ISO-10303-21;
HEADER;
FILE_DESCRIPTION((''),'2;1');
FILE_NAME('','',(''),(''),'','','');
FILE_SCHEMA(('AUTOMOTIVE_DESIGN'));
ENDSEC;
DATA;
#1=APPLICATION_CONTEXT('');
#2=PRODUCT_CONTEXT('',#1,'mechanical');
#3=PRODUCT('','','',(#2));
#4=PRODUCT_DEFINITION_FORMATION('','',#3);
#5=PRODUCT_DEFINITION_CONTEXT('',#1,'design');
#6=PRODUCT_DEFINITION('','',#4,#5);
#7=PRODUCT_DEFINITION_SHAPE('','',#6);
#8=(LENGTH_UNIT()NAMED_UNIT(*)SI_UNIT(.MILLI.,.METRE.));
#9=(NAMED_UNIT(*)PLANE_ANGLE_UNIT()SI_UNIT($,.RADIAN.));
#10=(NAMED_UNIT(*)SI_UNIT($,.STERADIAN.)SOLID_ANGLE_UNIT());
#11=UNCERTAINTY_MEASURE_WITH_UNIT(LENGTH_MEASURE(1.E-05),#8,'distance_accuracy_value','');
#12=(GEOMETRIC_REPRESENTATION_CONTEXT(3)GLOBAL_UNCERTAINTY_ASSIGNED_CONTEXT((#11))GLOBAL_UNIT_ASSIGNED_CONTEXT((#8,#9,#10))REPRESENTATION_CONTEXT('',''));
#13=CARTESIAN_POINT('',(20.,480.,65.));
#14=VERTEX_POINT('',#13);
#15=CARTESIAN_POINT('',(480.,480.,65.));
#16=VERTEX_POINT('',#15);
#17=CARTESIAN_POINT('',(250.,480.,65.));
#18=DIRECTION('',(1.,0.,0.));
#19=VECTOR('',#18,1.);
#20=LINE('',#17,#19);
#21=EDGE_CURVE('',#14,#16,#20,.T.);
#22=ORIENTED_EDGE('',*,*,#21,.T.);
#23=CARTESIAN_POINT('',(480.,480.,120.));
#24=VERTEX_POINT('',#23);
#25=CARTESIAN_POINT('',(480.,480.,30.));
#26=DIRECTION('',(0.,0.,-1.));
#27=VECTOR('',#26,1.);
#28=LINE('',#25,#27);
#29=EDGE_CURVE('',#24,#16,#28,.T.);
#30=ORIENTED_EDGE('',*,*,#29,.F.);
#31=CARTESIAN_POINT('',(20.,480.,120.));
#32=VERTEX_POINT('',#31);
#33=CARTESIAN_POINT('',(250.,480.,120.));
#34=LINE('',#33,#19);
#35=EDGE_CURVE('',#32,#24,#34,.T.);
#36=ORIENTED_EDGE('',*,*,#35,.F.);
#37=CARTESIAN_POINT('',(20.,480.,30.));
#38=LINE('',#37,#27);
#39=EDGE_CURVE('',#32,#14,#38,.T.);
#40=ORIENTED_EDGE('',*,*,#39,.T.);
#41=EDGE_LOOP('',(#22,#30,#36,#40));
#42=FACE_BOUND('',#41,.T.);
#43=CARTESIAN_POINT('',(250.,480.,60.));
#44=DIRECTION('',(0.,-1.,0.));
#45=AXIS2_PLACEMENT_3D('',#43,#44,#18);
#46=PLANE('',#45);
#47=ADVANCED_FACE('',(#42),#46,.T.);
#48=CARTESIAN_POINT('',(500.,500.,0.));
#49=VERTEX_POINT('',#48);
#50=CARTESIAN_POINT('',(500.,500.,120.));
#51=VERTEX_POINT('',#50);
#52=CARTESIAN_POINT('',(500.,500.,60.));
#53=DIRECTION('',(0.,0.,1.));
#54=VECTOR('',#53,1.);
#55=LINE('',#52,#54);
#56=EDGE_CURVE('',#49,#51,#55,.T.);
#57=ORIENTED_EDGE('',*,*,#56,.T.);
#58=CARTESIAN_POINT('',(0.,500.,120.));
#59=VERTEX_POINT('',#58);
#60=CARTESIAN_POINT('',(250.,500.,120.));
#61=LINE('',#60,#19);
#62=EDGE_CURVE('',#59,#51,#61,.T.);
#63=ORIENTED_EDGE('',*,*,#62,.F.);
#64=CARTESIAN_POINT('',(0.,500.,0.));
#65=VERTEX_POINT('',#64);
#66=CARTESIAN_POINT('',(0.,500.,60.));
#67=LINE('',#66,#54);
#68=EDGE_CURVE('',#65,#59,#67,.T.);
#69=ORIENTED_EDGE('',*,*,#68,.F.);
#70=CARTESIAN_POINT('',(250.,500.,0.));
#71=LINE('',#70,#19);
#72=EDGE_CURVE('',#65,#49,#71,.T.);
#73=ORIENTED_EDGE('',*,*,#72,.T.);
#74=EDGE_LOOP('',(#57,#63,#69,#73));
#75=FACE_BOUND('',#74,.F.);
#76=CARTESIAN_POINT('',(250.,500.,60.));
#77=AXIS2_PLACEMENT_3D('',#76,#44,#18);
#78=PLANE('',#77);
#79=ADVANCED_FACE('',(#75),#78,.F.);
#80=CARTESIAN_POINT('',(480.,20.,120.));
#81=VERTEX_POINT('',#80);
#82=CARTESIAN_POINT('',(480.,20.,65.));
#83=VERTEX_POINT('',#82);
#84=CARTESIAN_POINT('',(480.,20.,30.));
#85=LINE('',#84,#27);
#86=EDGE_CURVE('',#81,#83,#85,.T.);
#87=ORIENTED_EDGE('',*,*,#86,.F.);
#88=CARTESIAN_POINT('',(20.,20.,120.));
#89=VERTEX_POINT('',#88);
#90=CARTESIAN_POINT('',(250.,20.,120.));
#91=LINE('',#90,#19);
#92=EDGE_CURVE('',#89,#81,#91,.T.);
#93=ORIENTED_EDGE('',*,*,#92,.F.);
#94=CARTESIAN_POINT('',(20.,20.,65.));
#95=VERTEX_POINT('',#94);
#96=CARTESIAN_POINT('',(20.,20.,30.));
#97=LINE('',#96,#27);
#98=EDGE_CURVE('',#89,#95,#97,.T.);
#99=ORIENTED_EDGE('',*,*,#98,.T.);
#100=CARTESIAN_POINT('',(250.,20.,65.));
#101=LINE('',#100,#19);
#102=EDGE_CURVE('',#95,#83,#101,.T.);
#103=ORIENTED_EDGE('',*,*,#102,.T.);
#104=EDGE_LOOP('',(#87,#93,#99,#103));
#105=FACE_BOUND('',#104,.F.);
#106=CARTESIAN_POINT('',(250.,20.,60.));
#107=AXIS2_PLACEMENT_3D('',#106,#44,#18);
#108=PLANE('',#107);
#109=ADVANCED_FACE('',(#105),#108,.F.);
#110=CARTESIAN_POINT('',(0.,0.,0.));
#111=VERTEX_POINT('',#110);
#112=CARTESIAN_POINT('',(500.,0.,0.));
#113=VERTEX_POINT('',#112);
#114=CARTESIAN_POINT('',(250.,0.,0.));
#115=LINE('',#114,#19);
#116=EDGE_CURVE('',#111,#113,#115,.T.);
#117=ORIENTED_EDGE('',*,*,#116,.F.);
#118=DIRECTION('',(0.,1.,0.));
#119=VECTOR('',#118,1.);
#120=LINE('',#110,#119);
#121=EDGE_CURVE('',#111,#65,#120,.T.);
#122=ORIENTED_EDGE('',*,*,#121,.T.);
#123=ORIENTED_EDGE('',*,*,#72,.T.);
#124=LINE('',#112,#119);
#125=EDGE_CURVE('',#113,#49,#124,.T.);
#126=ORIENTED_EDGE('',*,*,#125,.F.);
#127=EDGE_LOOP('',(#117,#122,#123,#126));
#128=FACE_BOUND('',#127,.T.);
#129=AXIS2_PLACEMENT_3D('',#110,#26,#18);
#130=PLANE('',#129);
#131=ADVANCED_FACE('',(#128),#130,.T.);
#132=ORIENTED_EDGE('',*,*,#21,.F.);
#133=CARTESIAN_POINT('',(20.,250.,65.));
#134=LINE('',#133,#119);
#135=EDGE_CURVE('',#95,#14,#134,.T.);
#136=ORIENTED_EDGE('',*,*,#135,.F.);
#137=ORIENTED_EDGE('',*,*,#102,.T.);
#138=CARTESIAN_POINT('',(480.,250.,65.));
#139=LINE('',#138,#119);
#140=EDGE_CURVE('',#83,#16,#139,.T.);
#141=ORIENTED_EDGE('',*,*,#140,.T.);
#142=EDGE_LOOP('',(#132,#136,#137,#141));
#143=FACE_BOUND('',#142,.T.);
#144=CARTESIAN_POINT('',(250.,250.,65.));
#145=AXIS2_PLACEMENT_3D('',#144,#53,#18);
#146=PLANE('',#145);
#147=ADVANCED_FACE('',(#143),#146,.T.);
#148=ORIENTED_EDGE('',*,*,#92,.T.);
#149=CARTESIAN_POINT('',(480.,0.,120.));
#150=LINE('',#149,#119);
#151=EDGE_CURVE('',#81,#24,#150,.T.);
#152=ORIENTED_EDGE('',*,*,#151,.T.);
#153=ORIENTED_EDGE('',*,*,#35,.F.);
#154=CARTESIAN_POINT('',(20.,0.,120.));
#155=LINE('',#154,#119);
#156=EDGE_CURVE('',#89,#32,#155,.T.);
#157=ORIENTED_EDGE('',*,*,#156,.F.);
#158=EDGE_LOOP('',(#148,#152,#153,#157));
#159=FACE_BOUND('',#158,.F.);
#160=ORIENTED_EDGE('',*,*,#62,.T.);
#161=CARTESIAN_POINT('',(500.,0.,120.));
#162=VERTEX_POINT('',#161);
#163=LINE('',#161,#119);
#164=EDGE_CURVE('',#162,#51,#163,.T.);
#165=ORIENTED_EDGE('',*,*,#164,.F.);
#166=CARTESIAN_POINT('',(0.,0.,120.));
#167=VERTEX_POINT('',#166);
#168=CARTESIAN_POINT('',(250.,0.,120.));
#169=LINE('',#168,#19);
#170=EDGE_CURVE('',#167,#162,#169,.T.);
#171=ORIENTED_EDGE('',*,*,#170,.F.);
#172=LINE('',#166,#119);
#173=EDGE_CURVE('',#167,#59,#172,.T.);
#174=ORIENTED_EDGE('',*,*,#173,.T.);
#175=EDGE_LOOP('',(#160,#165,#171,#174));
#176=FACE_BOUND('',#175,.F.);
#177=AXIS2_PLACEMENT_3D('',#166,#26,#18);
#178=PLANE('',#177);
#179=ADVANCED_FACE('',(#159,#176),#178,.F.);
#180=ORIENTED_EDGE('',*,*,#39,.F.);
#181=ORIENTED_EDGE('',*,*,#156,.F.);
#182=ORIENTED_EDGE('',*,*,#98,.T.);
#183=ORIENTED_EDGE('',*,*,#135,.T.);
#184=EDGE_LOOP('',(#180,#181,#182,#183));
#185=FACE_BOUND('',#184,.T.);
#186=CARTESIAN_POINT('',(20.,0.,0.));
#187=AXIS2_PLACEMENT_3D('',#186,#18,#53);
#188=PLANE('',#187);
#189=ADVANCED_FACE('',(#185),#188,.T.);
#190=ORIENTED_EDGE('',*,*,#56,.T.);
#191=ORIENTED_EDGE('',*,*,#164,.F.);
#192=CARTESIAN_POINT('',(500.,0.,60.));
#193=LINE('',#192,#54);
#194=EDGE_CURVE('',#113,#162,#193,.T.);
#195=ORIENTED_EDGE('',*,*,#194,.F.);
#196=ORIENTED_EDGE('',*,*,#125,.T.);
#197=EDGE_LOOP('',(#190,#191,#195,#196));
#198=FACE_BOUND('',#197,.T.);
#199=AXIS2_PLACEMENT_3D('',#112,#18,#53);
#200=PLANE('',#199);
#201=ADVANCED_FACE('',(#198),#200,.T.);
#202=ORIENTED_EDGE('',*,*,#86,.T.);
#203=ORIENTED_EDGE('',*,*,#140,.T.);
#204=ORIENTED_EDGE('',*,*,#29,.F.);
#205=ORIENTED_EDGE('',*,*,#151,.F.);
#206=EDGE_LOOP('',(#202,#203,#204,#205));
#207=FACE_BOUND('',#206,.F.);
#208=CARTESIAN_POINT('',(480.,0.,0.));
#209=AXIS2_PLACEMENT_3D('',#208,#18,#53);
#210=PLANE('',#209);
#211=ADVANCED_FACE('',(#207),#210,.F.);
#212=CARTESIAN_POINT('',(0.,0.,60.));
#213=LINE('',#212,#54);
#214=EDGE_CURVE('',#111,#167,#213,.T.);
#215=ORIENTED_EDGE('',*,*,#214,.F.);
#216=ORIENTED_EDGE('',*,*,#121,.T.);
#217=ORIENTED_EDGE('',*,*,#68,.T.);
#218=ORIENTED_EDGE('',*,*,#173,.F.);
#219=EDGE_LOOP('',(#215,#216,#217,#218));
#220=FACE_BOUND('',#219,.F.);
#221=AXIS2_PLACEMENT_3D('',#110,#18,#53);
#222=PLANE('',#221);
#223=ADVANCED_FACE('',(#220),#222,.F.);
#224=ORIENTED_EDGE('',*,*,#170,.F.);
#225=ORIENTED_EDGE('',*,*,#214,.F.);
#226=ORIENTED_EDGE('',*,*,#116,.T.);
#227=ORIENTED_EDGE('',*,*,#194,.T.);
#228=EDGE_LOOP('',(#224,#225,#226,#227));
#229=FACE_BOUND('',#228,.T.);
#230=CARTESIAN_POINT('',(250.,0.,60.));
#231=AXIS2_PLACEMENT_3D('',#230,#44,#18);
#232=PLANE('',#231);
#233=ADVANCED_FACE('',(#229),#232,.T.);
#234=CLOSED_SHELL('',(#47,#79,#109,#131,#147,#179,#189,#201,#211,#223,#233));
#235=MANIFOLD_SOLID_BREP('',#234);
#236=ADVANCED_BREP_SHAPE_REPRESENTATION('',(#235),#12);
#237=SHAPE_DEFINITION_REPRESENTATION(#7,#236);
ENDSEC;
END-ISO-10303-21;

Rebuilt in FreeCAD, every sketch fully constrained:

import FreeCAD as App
import Part
import Sketcher
Q = App.Units.Quantity


def faces_at(feature, points):
    """Names of the faces that lie closest to the given points."""
    faces = feature.Shape.Faces
    near = lambda p: min(range(len(faces)), key=lambda i: faces[i].distToShape(Part.Vertex(*p))[0])
    return sorted({f"Face{near(p) + 1}" for p in points})


def add_polygon(sketch, points):
    """Adds a closed chain of lines whose ends are joined by coincident constraints."""
    first, n = sketch.GeometryCount, len(points)
    for a, b in zip(points, points[1:] + points[:1]):
        sketch.addGeometry(Part.LineSegment(App.Vector(*a, 0), App.Vector(*b, 0)), False)
    for i in range(n):
        sketch.addConstraint(Sketcher.Constraint("Coincident", first + i, 2, first + (i + 1) % n, 1))

doc = App.newDocument("Part")
body = doc.addObject("PartDesign::Body", "Body")

# Sketch on XZ plane
sketch1 = body.newObject("Sketcher::SketchObject", "Sketch")
sketch1.AttachmentSupport = (doc.getObject("XZ_Plane"), [""])
sketch1.MapMode = "FlatFace"
add_polygon(sketch1, [(0, 120), (0, 0), (500, 0), (500, 120)])  # lines 0-3
sketch1.addConstraint([
    Sketcher.Constraint("Vertical", 0),
    Sketcher.Constraint("Horizontal", 1),
    Sketcher.Constraint("Vertical", 2),
    Sketcher.Constraint("Horizontal", 3),
    Sketcher.Constraint("Coincident", 0, 2, -1, 1),
    Sketcher.Constraint("DistanceX", 1, 1, 1, 2, Q("500 mm")),
    Sketcher.Constraint("DistanceY", 0, 2, 0, 1, Q("120 mm")),
])
pad1 = body.newObject("PartDesign::Pad", "Pad")
pad1.Profile = sketch1
pad1.Length = 500
pad1.Reversed = True
doc.recompute()

thickness = body.newObject("PartDesign::Thickness", "Thickness")
thickness.Base = (pad1, faces_at(pad1, [(250, 250, 120)]))
thickness.Value = 20
thickness.Reversed = True
thickness.Join = "Arc"

# Sketch on XY plane
sketch2 = body.newObject("Sketcher::SketchObject", "Sketch001")
sketch2.AttachmentSupport = (doc.getObject("XY_Plane"), [""])
sketch2.MapMode = "FlatFace"
sketch2.AttachmentOffset = App.Placement(App.Vector(0, 0, 20), App.Rotation())
add_polygon(sketch2, [(20, 480), (20, 20), (480, 20), (480, 480)])  # lines 0-3
sketch2.addConstraint([
    Sketcher.Constraint("Vertical", 0),
    Sketcher.Constraint("Horizontal", 1),
    Sketcher.Constraint("Vertical", 2),
    Sketcher.Constraint("Horizontal", 3),
    Sketcher.Constraint("Equal", 3, 0),
    Sketcher.Constraint("DistanceX", 1, 1, 1, 2, Q("460 mm")),
    Sketcher.Constraint("DistanceX", -1, 1, 0, 2, Q("20 mm")),
    Sketcher.Constraint("DistanceY", -1, 1, 0, 2, Q("20 mm")),
])
pad2 = body.newObject("PartDesign::Pad", "Pad001")
pad2.Profile = sketch2
pad2.Length = 45

doc.recompute()
